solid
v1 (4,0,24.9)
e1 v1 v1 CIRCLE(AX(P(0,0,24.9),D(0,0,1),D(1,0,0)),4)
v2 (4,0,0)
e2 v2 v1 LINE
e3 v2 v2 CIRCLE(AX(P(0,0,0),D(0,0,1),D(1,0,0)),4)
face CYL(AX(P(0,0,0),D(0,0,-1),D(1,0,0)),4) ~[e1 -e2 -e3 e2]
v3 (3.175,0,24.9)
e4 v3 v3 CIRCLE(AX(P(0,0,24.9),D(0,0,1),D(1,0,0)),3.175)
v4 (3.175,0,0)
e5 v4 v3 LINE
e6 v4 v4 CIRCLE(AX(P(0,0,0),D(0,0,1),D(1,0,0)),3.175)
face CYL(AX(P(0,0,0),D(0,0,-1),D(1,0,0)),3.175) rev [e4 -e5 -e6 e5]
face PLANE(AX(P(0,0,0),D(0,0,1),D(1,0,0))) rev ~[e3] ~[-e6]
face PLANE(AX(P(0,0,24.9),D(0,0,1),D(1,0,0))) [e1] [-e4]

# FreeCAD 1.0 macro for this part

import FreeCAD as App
import Part
import Sketcher
from FreeCAD import Vector

doc = App.newDocument("Part")
body = doc.addObject("PartDesign::Body", "Body")

sketch1 = doc.addObject("Sketcher::SketchObject", "Sketch")
body.addObject(sketch1)
sketch1.AttachmentSupport = (doc.XY_Plane, [""])
sketch1.MapMode = "FlatFace"
sketch1.addGeometry([
    Part.Circle(Vector(0, 0, 0), Vector(0, 0, 1), 4),
    Part.Circle(Vector(0, 0, 0), Vector(0, 0, 1), 3.175),
], False)
sketch1.addConstraint([
    Sketcher.Constraint("Coincident", 0, 3, -1, 1),
    Sketcher.Constraint("Coincident", 1, 3, -1, 1),
    Sketcher.Constraint("Diameter", 0, 8.0),
    Sketcher.Constraint("Diameter", 1, 6.35),
])
pad1 = doc.addObject("PartDesign::Pad", "Pad")
body.addObject(pad1)
pad1.Profile = sketch1
pad1.Length = 24.9

doc.recompute()
